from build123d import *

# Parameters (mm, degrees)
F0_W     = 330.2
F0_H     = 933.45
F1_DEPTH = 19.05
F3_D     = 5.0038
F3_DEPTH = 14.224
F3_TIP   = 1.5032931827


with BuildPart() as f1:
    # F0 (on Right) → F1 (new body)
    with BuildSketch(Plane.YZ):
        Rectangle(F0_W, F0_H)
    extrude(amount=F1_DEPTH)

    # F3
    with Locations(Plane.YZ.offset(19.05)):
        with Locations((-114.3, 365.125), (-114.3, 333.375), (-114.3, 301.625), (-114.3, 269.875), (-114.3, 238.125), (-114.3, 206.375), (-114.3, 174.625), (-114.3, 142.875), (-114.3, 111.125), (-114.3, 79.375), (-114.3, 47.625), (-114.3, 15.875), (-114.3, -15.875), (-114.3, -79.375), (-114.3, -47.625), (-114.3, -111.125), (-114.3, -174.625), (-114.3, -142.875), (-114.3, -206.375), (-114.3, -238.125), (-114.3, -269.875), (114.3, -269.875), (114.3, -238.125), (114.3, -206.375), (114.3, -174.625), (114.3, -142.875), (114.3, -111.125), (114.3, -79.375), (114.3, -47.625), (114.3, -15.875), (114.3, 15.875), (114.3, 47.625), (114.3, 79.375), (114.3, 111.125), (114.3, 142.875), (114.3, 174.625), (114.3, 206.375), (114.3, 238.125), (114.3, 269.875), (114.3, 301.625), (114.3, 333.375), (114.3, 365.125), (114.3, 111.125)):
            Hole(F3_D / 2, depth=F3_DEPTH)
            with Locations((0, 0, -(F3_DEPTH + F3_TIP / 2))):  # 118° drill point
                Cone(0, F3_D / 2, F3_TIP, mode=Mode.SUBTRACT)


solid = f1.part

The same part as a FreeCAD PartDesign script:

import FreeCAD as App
import Part
import Sketcher

V = App.Vector
Q = App.Units.Quantity


def add_polygon(sketch, points):
    """Adds a closed chain of lines whose ends are joined by coincident constraints."""
    first, n = sketch.GeometryCount, len(points)
    for a, b in zip(points, points[1:] + points[:1]):
        sketch.addGeometry(Part.LineSegment(App.Vector(*a, 0), App.Vector(*b, 0)), False)
    for i in range(n):
        sketch.addConstraint(Sketcher.Constraint("Coincident", first + i, 2, first + (i + 1) % n, 1))

doc = App.newDocument("Part")
body = doc.addObject("PartDesign::Body", "Body")

# Sketch on YZ plane
sketch1 = body.newObject("Sketcher::SketchObject", "Sketch")
sketch1.AttachmentSupport = (doc.getObject("YZ_Plane"), [""])
sketch1.MapMode = "FlatFace"
add_polygon(sketch1, [(-165, 467), (-165, -467), (165, -467), (165, 467)])  # lines 0-3
sketch1.addConstraint([
    Sketcher.Constraint("Vertical", 0),
    Sketcher.Constraint("Horizontal", 1),
    Sketcher.Constraint("Vertical", 2),
    Sketcher.Constraint("Horizontal", 3),
    Sketcher.Constraint("Symmetric", 0, 2, 2, 2, -1, 1),
    Sketcher.Constraint("DistanceX", 1, 1, 1, 2, Q("13 in")),
    Sketcher.Constraint("DistanceY", 0, 2, 0, 1, Q("36.75 in")),
])
pad1 = body.newObject("PartDesign::Pad", "Pad")
pad1.Profile = sketch1
pad1.Length = Q("0.75 in")

# Sketch on YZ plane
sketch2 = body.newObject("Sketcher::SketchObject", "Sketch001")
sketch2.AttachmentSupport = (doc.getObject("YZ_Plane"), [""])
sketch2.MapMode = "FlatFace"
sketch2.AttachmentOffset = App.Placement(V(0, 0, 0.75 * 25.4), App.Rotation())
sketch2.addGeometry([
    Part.Circle(V(-114.3, 365.1, 0), V(0, 0, 1), 2.5),  # 0
    Part.Circle(V(-114.3, 333.4, 0), V(0, 0, 1), 2.5),  # 1
    Part.Circle(V(-114.3, 301.6, 0), V(0, 0, 1), 2.5),  # 2
    Part.Circle(V(-114.3, 269.9, 0), V(0, 0, 1), 2.5),  # 3
    Part.Circle(V(-114.3, 238.1, 0), V(0, 0, 1), 2.5),  # 4
    Part.Circle(V(-114.3, 206.4, 0), V(0, 0, 1), 2.5),  # 5
    Part.Circle(V(-114.3, 174.6, 0), V(0, 0, 1), 2.5),  # 6
    Part.Circle(V(-114.3, 142.9, 0), V(0, 0, 1), 2.5),  # 7
    Part.Circle(V(-114.3, 111.1, 0), V(0, 0, 1), 2.5),  # 8
    Part.Circle(V(-114.3, 79.4, 0), V(0, 0, 1), 2.5),  # 9
    Part.Circle(V(-114.3, 47.6, 0), V(0, 0, 1), 2.5),  # 10
    Part.Circle(V(-114.3, 15.9, 0), V(0, 0, 1), 2.5),  # 11
    Part.Circle(V(-114.3, -15.9, 0), V(0, 0, 1), 2.5),  # 12
    Part.Circle(V(-114.3, -79.4, 0), V(0, 0, 1), 2.5),  # 13
    Part.Circle(V(-114.3, -47.6, 0), V(0, 0, 1), 2.5),  # 14
    Part.Circle(V(-114.3, -111.1, 0), V(0, 0, 1), 2.5),  # 15
    Part.Circle(V(-114.3, -174.6, 0), V(0, 0, 1), 2.5),  # 16
    Part.Circle(V(-114.3, -142.9, 0), V(0, 0, 1), 2.5),  # 17
    Part.Circle(V(-114.3, -206.4, 0), V(0, 0, 1), 2.5),  # 18
    Part.Circle(V(-114.3, -238.1, 0), V(0, 0, 1), 2.5),  # 19
    Part.Circle(V(-114.3, -269.9, 0), V(0, 0, 1), 2.5),  # 20
    Part.Circle(V(114.3, -269.9, 0), V(0, 0, 1), 2.5),  # 21
    Part.Circle(V(114.3, -238.1, 0), V(0, 0, 1), 2.5),  # 22
    Part.Circle(V(114.3, -206.4, 0), V(0, 0, 1), 2.5),  # 23
    Part.Circle(V(114.3, -174.6, 0), V(0, 0, 1), 2.5),  # 24
    Part.Circle(V(114.3, -142.9, 0), V(0, 0, 1), 2.5),  # 25
    Part.Circle(V(114.3, -111.1, 0), V(0, 0, 1), 2.5),  # 26
    Part.Circle(V(114.3, -79.4, 0), V(0, 0, 1), 2.5),  # 27
    Part.Circle(V(114.3, -47.6, 0), V(0, 0, 1), 2.5),  # 28
    Part.Circle(V(114.3, -15.9, 0), V(0, 0, 1), 2.5),  # 29
    Part.Circle(V(114.3, 15.9, 0), V(0, 0, 1), 2.5),  # 30
    Part.Circle(V(114.3, 47.6, 0), V(0, 0, 1), 2.5),  # 31
    Part.Circle(V(114.3, 79.4, 0), V(0, 0, 1), 2.5),  # 32
    Part.Circle(V(114.3, 111.1, 0), V(0, 0, 1), 2.5),  # 33
    Part.Circle(V(114.3, 142.9, 0), V(0, 0, 1), 2.5),  # 34
    Part.Circle(V(114.3, 174.6, 0), V(0, 0, 1), 2.5),  # 35
    Part.Circle(V(114.3, 206.4, 0), V(0, 0, 1), 2.5),  # 36
    Part.Circle(V(114.3, 238.1, 0), V(0, 0, 1), 2.5),  # 37
    Part.Circle(V(114.3, 269.9, 0), V(0, 0, 1), 2.5),  # 38
    Part.Circle(V(114.3, 301.6, 0), V(0, 0, 1), 2.5),  # 39
    Part.Circle(V(114.3, 333.4, 0), V(0, 0, 1), 2.5),  # 40
    Part.Circle(V(114.3, 365.1, 0), V(0, 0, 1), 2.5),  # 41
    Part.Circle(V(114.3, 111.1, 0), V(0, 0, 1), 2.5),  # 42
], False)
sketch2.addConstraint([
    Sketcher.Constraint("Coincident", 42, 3, 33, 3),
    Sketcher.Constraint("Equal", 0, 1),
    Sketcher.Constraint("Equal", 1, 2),
    Sketcher.Constraint("Equal", 2, 3),
    Sketcher.Constraint("Equal", 3, 4),
    Sketcher.Constraint("Equal", 4, 5),
    Sketcher.Constraint("Equal", 5, 6),
    Sketcher.Constraint("Equal", 6, 7),
    Sketcher.Constraint("Equal", 7, 8),
    Sketcher.Constraint("Equal", 8, 9),
    Sketcher.Constraint("Equal", 9, 10),
    Sketcher.Constraint("Equal", 10, 11),
    Sketcher.Constraint("Equal", 11, 12),
    Sketcher.Constraint("Equal", 12, 13),
    Sketcher.Constraint("Equal", 13, 14),
    Sketcher.Constraint("Equal", 14, 15),
    Sketcher.Constraint("Equal", 15, 16),
    Sketcher.Constraint("Equal", 16, 17),
    Sketcher.Constraint("Equal", 17, 18),
    Sketcher.Constraint("Equal", 18, 19),
    Sketcher.Constraint("Equal", 19, 20),
    Sketcher.Constraint("Equal", 20, 21),
    Sketcher.Constraint("Equal", 21, 22),
    Sketcher.Constraint("Equal", 22, 23),
    Sketcher.Constraint("Equal", 23, 24),
    Sketcher.Constraint("Equal", 24, 25),
    Sketcher.Constraint("Equal", 25, 26),
    Sketcher.Constraint("Equal", 26, 27),
    Sketcher.Constraint("Equal", 27, 28),
    Sketcher.Constraint("Equal", 28, 29),
    Sketcher.Constraint("Equal", 29, 30),
    Sketcher.Constraint("Equal", 30, 31),
    Sketcher.Constraint("Equal", 31, 32),
    Sketcher.Constraint("Equal", 32, 33),
    Sketcher.Constraint("Equal", 33, 34),
    Sketcher.Constraint("Equal", 34, 35),
    Sketcher.Constraint("Equal", 35, 36),
    Sketcher.Constraint("Equal", 36, 37),
    Sketcher.Constraint("Equal", 37, 38),
    Sketcher.Constraint("Equal", 38, 39),
    Sketcher.Constraint("Equal", 39, 40),
    Sketcher.Constraint("Equal", 40, 41),
    Sketcher.Constraint("Equal", 41, 42),
    Sketcher.Constraint("Symmetric", 3, 3, 21, 3, -1, 1),
    Sketcher.Constraint("Symmetric", 4, 3, 22, 3, -1, 1),
    Sketcher.Constraint("Symmetric", 5, 3, 23, 3, -1, 1),
    Sketcher.Constraint("Symmetric", 6, 3, 24, 3, -1, 1),
    Sketcher.Constraint("Symmetric", 7, 3, 25, 3, -1, 1),
    Sketcher.Constraint("Symmetric", 8, 3, 26, 3, -1, 1),
    Sketcher.Constraint("Symmetric", 9, 3, 27, 3, -1, 1),
    Sketcher.Constraint("Symmetric", 10, 3, 28, 3, -1, 1),
    Sketcher.Constraint("Symmetric", 11, 3, 29, 3, -1, 1),
    Sketcher.Constraint("Symmetric", 12, 3, 30, 3, -1, 1),
    Sketcher.Constraint("Symmetric", 14, 3, 31, 3, -1, 1),
    Sketcher.Constraint("Symmetric", 13, 3, 32, 3, -1, 1),
    Sketcher.Constraint("Symmetric", 15, 3, 33, 3, -1, 1),
    Sketcher.Constraint("Symmetric", 17, 3, 34, 3, -1, 1),
    Sketcher.Constraint("Symmetric", 16, 3, 35, 3, -1, 1),
    Sketcher.Constraint("Symmetric", 18, 3, 36, 3, -1, 1),
    Sketcher.Constraint("Symmetric", 19, 3, 37, 3, -1, 1),
    Sketcher.Constraint("Symmetric", 20, 3, 38, 3, -1, 1),
    Sketcher.Constraint("Symmetric", 20, 3, 21, 3, -2),
    Sketcher.Constraint("Symmetric", 19, 3, 22, 3, -2),
    Sketcher.Constraint("Symmetric", 18, 3, 23, 3, -2),
    Sketcher.Constraint("Symmetric", 16, 3, 24, 3, -2),
    Sketcher.Constraint("Symmetric", 17, 3, 25, 3, -2),
    Sketcher.Constraint("Symmetric", 15, 3, 26, 3, -2),
    Sketcher.Constraint("Symmetric", 13, 3, 27, 3, -2),
    Sketcher.Constraint("Symmetric", 14, 3, 28, 3, -2),
    Sketcher.Constraint("Symmetric", 12, 3, 29, 3, -2),
    Sketcher.Constraint("Symmetric", 2, 3, 39, 3, -2),
    Sketcher.Constraint("Symmetric", 1, 3, 40, 3, -2),
    Sketcher.Constraint("Symmetric", 0, 3, 41, 3, -2),
    Sketcher.Constraint("Vertical", 0, 3, 1, 3),
    Sketcher.Constraint("Vertical", 1, 3, 2, 3),
    Sketcher.Constraint("Vertical", 2, 3, 3, 3),
    Sketcher.Constraint("Vertical", 3, 3, 4, 3),
    Sketcher.Constraint("Vertical", 4, 3, 5, 3),
    Sketcher.Constraint("Vertical", 5, 3, 6, 3),
    Sketcher.Constraint("Vertical", 6, 3, 7, 3),
    Sketcher.Constraint("Vertical", 7, 3, 8, 3),
    Sketcher.Constraint("Vertical", 8, 3, 9, 3),
    Sketcher.Constraint("Vertical", 9, 3, 10, 3),
    Sketcher.Constraint("Vertical", 10, 3, 11, 3),
    Sketcher.Constraint("Diameter", 0, Q("0.197 in")),
    Sketcher.Constraint("DistanceY", 4, 3, 0, 3, Q("5 in")),
    Sketcher.Constraint("DistanceY", 5, 3, 1, 3, Q("5 in")),
    Sketcher.Constraint("DistanceY", 6, 3, 2, 3, Q("5 in")),
    Sketcher.Constraint("DistanceY", 7, 3, 3, 3, Q("5 in")),
    Sketcher.Constraint("DistanceY", 8, 3, 4, 3, Q("5 in")),
    Sketcher.Constraint("DistanceY", 9, 3, 5, 3, Q("5 in")),
    Sketcher.Constraint("DistanceY", 10, 3, 6, 3, Q("5 in")),
    Sketcher.Constraint("DistanceY", 11, 3, 7, 3, Q("5 in")),
    Sketcher.Constraint("DistanceY", 12, 3, 8, 3, Q("5 in")),
    Sketcher.Constraint("DistanceY", 13, 3, 10, 3, Q("5 in")),
    Sketcher.Constraint("DistanceX", 20, 3, 21, 3, Q("9 in")),
    Sketcher.Constraint("DistanceY", 2, 3, 0, 3, Q("2.5 in")),
    Sketcher.Constraint("DistanceY", 1, 3, 0, 3, Q("1.25 in")),
])
doc.recompute()
hole = body.newObject("PartDesign::Hole", "Hole")
hole.Profile = sketch2
hole.ThreadType = "None"
hole.Diameter = Q("0.197 in")
hole.DepthType = "Dimension"
hole.Depth = Q("0.56 in")
hole.DrillPoint = "Angled"
hole.DrillPointAngle = 118

doc.recompute()
